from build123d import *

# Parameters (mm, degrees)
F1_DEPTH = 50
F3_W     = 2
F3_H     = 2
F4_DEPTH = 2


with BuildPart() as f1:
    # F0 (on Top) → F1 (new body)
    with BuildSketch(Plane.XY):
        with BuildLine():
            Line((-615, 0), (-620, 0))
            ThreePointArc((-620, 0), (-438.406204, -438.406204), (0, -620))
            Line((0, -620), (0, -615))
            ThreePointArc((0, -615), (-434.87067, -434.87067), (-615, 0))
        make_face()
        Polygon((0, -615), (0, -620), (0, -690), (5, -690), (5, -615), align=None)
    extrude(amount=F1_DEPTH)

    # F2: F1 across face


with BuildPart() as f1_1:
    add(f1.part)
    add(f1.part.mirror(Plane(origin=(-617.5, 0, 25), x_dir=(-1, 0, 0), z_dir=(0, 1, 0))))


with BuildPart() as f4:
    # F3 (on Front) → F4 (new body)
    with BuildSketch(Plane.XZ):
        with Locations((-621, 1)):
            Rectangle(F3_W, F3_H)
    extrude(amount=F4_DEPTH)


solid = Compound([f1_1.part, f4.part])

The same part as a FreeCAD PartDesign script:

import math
import FreeCAD as App
import Part
import Sketcher

V = App.Vector


def add_polygon(sketch, points):
    """Adds a closed chain of lines whose ends are joined by coincident constraints."""
    first, n = sketch.GeometryCount, len(points)
    for a, b in zip(points, points[1:] + points[:1]):
        sketch.addGeometry(Part.LineSegment(App.Vector(*a, 0), App.Vector(*b, 0)), False)
    for i in range(n):
        sketch.addConstraint(Sketcher.Constraint("Coincident", first + i, 2, first + (i + 1) % n, 1))

doc = App.newDocument("Part")
params = doc.addObject("Spreadsheet::Sheet", "Params")
for row, (alias, value) in enumerate([
    ("sketch1_radius", "620.000001 mm"),
    ("sketch1_radius2", "615.000001 mm"),
    ("sketch1_height", "70 mm"),
    ("pad1_length", "50 mm"),
    ("sketch2_width", "2 mm"),
    ("pad2_length", "2 mm"),
], start=1):
    params.set(f"A{row}", alias)
    params.set(f"B{row}", "=" + value)
    params.setAlias(f"B{row}", alias)

body = doc.addObject("PartDesign::Body", "Body")

sketch1 = doc.addObject("Sketcher::SketchObject", "Sketch")
body.addObject(sketch1)
sketch1.AttachmentSupport = (doc.XY_Plane, [""])
sketch1.MapMode = "FlatFace"
sketch1.addGeometry(Part.LineSegment(V(-615, 0, 0), V(-620, 0, 0)), False)
sketch1.addGeometry(Part.ArcOfCircle(Part.Circle(V(0.000001, 0.000001, 0), V(0, 0, 1), 620.000001), math.radians(-180), math.radians(-90)), False)
sketch1.addGeometry(Part.LineSegment(V(0, -620, 0), V(0, -690, 0)), False)
sketch1.addGeometry(Part.LineSegment(V(0, -690, 0), V(5, -690, 0)), False)
sketch1.addGeometry(Part.LineSegment(V(5, -690, 0), V(5, -615, 0)), False)
sketch1.addGeometry(Part.LineSegment(V(5, -615, 0), V(0, -615, 0)), False)
sketch1.addGeometry(Part.ArcOfCircle(Part.Circle(V(0.000001, 0.000001, 0), V(0, 0, 1), 615.000001), math.radians(-180), math.radians(-90)), False)
sketch1.addConstraint(Sketcher.Constraint("Coincident", 0, 2, 1, 1))
sketch1.addConstraint(Sketcher.Constraint("Coincident", 1, 2, 2, 1))
sketch1.addConstraint(Sketcher.Constraint("Coincident", 2, 2, 3, 1))
sketch1.addConstraint(Sketcher.Constraint("Coincident", 3, 2, 4, 1))
sketch1.addConstraint(Sketcher.Constraint("Coincident", 4, 2, 5, 1))
sketch1.addConstraint(Sketcher.Constraint("Tangent", 5, 2, 6, 2))
sketch1.addConstraint(Sketcher.Constraint("Coincident", 6, 1, 0, 1))
sketch1.addConstraint(Sketcher.Constraint("Horizontal", 0))
sketch1.addConstraint(Sketcher.Constraint("Vertical", 2))
sketch1.addConstraint(Sketcher.Constraint("Horizontal", 3))
sketch1.addConstraint(Sketcher.Constraint("Vertical", 4))
sketch1.addConstraint(Sketcher.Constraint("Horizontal", 5))
sketch1.addConstraint(Sketcher.Constraint("Coincident", 1, 3, -1, 1))
sketch1.addConstraint(Sketcher.Constraint("Coincident", 6, 3, -1, 1))
sketch1.addConstraint(Sketcher.Constraint("PointOnObject", 0, 2, -1))
sketch1.addConstraint(Sketcher.Constraint("PointOnObject", 2, 2, -2))
sketch1.addConstraint(Sketcher.Constraint("Equal", 0, 3))
sketch1.addConstraint(Sketcher.Constraint("Radius", 1, 620.000001))
sketch1.addConstraint(Sketcher.Constraint("Radius", 6, 615.000001))
sketch1.addConstraint(Sketcher.Constraint("DistanceY", 2, 2, 2, 1, 70.0))
sketch1.setExpression("Constraints[17]", "Params.sketch1_radius")
sketch1.setExpression("Constraints[18]", "Params.sketch1_radius2")
sketch1.setExpression("Constraints[19]", "Params.sketch1_height")
pad1 = doc.addObject("PartDesign::Pad", "Pad")
body.addObject(pad1)
pad1.Profile = sketch1
pad1.setExpression("Length", "Params.pad1_length")
body2 = doc.addObject("PartDesign::Body", "Body001")
doc.recompute()

body2.BaseFeature = body
doc.recompute()

mirroring = doc.addObject("Part::Mirroring", "Mirroring")
mirroring.Source = body
mirroring.Base = V(-617.5, 0, 25)
mirroring.Normal = V(0, 1, 0)
body3 = doc.addObject("PartDesign::Body", "Body002")
body3.BaseFeature = mirroring
boolean = doc.addObject("PartDesign::Boolean", "Boolean")
body2.addObject(boolean)
boolean.Type = "Fuse"
boolean.addObjects([body3])
doc.recompute()
body4 = doc.addObject("PartDesign::Body", "Body003")

sketch2 = doc.addObject("Sketcher::SketchObject", "Sketch001")
body4.addObject(sketch2)
sketch2.AttachmentSupport = (doc.getObject("XZ_Plane003"), [""])
sketch2.MapMode = "FlatFace"
add_polygon(sketch2, [(-622, 2), (-622, 0), (-620, 0), (-620, 2)])
sketch2.addConstraint(Sketcher.Constraint("Vertical", 0))
sketch2.addConstraint(Sketcher.Constraint("Horizontal", 1))
sketch2.addConstraint(Sketcher.Constraint("Vertical", 2))
sketch2.addConstraint(Sketcher.Constraint("Horizontal", 3))
sketch2.addConstraint(Sketcher.Constraint("PointOnObject", 0, 2, -1))
sketch2.addConstraint(Sketcher.Constraint("Equal", 3, 0))
sketch2.addConstraint(Sketcher.Constraint("DistanceX", 1, 1, 1, 2, 2.0))
sketch2.addConstraint(Sketcher.Constraint("DistanceX", 0, 2, -1, 1, 622.0))
sketch2.setExpression("Constraints[10]", "Params.sketch2_width")
pad2 = doc.addObject("PartDesign::Pad", "Pad001")
body4.addObject(pad2)
pad2.Profile = sketch2
pad2.setExpression("Length", "Params.pad2_length")
mirroring.Visibility = False

doc.recompute()
